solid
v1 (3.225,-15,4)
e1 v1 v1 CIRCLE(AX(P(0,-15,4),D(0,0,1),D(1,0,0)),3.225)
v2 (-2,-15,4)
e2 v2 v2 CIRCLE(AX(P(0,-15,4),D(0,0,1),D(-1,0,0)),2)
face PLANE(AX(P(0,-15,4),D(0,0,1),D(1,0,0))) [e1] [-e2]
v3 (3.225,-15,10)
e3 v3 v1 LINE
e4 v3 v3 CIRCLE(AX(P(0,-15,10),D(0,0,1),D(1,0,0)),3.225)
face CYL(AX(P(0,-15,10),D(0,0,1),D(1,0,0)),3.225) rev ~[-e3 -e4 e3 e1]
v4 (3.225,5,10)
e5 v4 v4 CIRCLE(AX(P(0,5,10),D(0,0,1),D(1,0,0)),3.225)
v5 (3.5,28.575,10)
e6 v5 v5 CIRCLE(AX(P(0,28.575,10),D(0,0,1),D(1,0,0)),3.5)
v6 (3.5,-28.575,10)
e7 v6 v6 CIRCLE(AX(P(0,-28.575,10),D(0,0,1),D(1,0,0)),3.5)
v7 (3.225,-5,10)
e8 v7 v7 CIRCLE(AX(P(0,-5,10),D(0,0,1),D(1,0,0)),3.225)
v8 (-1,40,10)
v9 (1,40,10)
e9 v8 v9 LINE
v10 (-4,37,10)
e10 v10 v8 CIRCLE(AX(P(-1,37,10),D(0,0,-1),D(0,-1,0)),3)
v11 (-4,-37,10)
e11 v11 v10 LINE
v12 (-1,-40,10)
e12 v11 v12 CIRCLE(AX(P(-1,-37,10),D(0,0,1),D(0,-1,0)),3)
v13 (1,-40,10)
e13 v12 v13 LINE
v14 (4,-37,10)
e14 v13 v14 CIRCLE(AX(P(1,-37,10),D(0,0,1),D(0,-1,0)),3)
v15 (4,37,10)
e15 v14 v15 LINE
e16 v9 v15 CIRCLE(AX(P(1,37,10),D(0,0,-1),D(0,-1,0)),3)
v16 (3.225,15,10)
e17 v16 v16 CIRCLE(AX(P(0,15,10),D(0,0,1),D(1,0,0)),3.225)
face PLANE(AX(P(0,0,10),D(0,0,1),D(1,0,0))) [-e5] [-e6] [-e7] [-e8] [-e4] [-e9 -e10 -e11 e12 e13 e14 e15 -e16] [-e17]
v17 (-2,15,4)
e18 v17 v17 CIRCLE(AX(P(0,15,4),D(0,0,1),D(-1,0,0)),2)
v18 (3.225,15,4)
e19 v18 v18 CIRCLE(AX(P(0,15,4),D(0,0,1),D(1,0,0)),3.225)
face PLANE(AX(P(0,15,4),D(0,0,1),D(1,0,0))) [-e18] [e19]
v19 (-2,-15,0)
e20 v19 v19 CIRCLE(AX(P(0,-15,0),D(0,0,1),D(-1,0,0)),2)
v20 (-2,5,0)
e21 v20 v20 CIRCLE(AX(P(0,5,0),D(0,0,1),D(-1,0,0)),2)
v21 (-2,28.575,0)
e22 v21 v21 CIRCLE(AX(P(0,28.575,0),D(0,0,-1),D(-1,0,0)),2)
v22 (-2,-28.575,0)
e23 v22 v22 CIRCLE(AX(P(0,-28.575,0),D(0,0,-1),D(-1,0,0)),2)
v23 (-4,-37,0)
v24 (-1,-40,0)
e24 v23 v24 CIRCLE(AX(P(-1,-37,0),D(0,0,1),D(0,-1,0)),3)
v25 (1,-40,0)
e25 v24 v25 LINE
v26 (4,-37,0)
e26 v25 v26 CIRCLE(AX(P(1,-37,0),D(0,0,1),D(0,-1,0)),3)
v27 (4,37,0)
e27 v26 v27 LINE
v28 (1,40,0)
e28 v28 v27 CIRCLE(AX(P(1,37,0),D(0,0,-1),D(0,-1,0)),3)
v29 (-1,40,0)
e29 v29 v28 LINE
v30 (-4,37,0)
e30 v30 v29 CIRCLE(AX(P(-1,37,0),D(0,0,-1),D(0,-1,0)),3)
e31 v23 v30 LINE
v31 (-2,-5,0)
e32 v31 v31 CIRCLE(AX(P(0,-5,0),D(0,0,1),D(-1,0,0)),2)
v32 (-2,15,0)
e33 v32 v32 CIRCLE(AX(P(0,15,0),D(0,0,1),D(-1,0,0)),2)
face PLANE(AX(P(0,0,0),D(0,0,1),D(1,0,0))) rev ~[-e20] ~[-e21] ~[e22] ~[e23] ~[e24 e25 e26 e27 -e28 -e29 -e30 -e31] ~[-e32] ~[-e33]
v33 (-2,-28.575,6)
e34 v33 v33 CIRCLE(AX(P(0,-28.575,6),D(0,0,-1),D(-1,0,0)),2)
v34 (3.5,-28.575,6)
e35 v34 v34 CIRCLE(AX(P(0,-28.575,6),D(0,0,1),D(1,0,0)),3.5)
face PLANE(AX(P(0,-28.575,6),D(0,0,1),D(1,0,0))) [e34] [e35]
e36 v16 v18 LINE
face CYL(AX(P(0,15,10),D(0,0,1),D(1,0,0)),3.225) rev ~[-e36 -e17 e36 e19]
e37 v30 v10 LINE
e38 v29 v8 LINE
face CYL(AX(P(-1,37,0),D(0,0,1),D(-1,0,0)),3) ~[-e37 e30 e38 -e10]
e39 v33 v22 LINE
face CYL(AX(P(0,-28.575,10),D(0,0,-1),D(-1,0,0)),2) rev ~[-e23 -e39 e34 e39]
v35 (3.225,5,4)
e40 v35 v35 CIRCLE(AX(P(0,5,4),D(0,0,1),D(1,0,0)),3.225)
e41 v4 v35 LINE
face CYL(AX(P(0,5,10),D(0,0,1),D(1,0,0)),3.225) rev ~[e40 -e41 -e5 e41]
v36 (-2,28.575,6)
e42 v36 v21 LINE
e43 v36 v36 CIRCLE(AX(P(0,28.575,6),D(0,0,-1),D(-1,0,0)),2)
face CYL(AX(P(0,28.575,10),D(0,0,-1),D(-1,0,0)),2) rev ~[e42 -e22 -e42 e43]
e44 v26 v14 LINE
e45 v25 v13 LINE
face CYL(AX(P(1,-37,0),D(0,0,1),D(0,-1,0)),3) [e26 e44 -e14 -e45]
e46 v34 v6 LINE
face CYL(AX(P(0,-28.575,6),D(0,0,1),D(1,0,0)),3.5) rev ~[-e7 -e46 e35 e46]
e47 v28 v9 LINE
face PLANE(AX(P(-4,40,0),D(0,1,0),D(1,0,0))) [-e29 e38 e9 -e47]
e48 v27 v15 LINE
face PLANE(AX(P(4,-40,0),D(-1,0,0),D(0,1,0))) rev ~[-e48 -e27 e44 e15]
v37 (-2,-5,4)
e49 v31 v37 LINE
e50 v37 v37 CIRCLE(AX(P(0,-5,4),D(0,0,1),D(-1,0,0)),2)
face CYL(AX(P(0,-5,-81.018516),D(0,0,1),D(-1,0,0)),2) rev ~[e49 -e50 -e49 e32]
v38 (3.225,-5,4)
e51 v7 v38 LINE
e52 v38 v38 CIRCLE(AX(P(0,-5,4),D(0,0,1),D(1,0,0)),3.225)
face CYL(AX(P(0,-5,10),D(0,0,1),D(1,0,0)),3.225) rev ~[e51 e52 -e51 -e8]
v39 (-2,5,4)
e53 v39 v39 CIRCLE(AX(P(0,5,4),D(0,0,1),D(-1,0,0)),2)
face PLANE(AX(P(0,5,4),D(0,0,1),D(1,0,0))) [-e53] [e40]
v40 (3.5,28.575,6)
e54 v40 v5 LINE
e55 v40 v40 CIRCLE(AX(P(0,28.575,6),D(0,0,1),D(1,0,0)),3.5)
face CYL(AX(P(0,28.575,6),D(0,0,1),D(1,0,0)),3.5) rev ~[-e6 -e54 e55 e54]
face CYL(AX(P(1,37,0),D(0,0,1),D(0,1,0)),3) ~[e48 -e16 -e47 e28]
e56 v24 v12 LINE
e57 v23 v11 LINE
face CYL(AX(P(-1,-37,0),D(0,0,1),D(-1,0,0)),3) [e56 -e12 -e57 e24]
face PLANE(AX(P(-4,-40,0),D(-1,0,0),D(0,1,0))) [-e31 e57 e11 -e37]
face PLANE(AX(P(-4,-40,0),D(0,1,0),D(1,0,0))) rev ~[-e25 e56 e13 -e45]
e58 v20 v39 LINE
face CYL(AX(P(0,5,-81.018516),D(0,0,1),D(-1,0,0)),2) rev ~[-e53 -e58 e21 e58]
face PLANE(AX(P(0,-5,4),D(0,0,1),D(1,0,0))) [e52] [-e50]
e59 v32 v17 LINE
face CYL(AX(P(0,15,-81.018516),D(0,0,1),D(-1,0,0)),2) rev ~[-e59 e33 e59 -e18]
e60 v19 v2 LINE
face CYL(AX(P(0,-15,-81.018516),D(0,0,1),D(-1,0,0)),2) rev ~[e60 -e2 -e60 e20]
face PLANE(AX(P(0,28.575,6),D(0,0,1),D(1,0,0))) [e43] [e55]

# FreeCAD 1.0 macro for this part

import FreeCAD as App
import Part
import Sketcher


def edges_at(feature, points):
    """Names of the edges that pass closest to the given points."""
    edges = feature.Shape.Edges
    near = lambda p: min(range(len(edges)), key=lambda i: edges[i].distToShape(Part.Vertex(*p))[0])
    return sorted({f"Edge{near(p) + 1}" for p in points})

doc = App.newDocument("Part")
body = doc.addObject("PartDesign::Body", "Body")

sketch1 = body.newObject("Sketcher::SketchObject", "Sketch")
sketch1.AttachmentSupport = (doc.getObject("XY_Plane"), [""])
sketch1.MapMode = "FlatFace"
sketch1.addGeometry([
    Part.LineSegment(App.Vector(-4, 40, 0), App.Vector(-4, -40, 0)),
    Part.LineSegment(App.Vector(-4, -40, 0), App.Vector(4, -40, 0)),
    Part.LineSegment(App.Vector(4, -40, 0), App.Vector(4, 40, 0)),
    Part.LineSegment(App.Vector(4, 40, 0), App.Vector(-4, 40, 0)),
], False)
sketch1.addConstraint([
    Sketcher.Constraint("Coincident", 0, 2, 1, 1),
    Sketcher.Constraint("Coincident", 1, 2, 2, 1),
    Sketcher.Constraint("Coincident", 2, 2, 3, 1),
    Sketcher.Constraint("Coincident", 3, 2, 0, 1),
    Sketcher.Constraint("Vertical", 0),
    Sketcher.Constraint("Horizontal", 1),
    Sketcher.Constraint("Vertical", 2),
    Sketcher.Constraint("Horizontal", 3),
    Sketcher.Constraint("Symmetric", 0, 2, 2, 2, -1, 1),
    Sketcher.Constraint("DistanceX", 1, 1, 1, 2, 8.0),
    Sketcher.Constraint("DistanceY", 0, 2, 0, 1, 80.0),
])
pad1 = body.newObject("PartDesign::Pad", "Pad")
pad1.Profile = sketch1
pad1.Length = 10

sketch2 = body.newObject("Sketcher::SketchObject", "Sketch001")
sketch2.AttachmentSupport = (doc.getObject("XY_Plane"), [""])
sketch2.MapMode = "FlatFace"
sketch2.AttachmentOffset = App.Placement(App.Vector(0, 0, 10), App.Rotation())
sketch2.addGeometry([
    Part.Circle(App.Vector(0, 28.575, 0), App.Vector(0, 0, 1), 2),
    Part.Circle(App.Vector(0, -28.575, 0), App.Vector(0, 0, 1), 2),
], False)
sketch2.addConstraint([
    Sketcher.Constraint("Equal", 0, 1),
    Sketcher.Constraint("Symmetric", 0, 3, 1, 3, -1, 1),
    Sketcher.Constraint("PointOnObject", 0, 3, -2),
    Sketcher.Constraint("Diameter", 0, 4.0),
    Sketcher.Constraint("DistanceY", 1, 3, 0, 3, 57.15),
])
doc.recompute()
hole = body.newObject("PartDesign::Hole", "Hole")
hole.Profile = sketch2
hole.ThreadType = "None"
hole.Diameter = 4
hole.DepthType = "ThroughAll"
hole.HoleCutType = "Counterbore"
hole.HoleCutDiameter = 7
hole.HoleCutDepth = 4
doc.recompute()

fillet = body.newObject("PartDesign::Fillet", "Fillet")
fillet.Base = (hole, edges_at(hole, [
    (-4, 40, 5),
    (4, 40, 5),
    (-4, -40, 5),
    (4, -40, 5),
]))
fillet.Radius = 3

sketch3 = body.newObject("Sketcher::SketchObject", "Sketch002")
sketch3.AttachmentSupport = (doc.getObject("XY_Plane"), [""])
sketch3.MapMode = "FlatFace"
sketch3.AttachmentOffset = App.Placement(App.Vector(0, 0, 10), App.Rotation())
sketch3.addGeometry([
    Part.Circle(App.Vector(0, -5, 0), App.Vector(0, 0, 1), 3.225),
    Part.Circle(App.Vector(0, 5, 0), App.Vector(0, 0, 1), 3.225),
    Part.Circle(App.Vector(0, 15, 0), App.Vector(0, 0, 1), 3.225),
    Part.Circle(App.Vector(0, -15, 0), App.Vector(0, 0, 1), 3.225),
], False)
sketch3.addConstraint([
    Sketcher.Constraint("Equal", 0, 1),
    Sketcher.Constraint("Equal", 1, 2),
    Sketcher.Constraint("Equal", 2, 3),
    Sketcher.Constraint("Symmetric", 0, 3, 1, 3, -1, 1),
    Sketcher.Constraint("Symmetric", 2, 3, 3, 3, -1, 1),
    Sketcher.Constraint("PointOnObject", 0, 3, -2),
    Sketcher.Constraint("PointOnObject", 2, 3, -2),
    Sketcher.Constraint("Diameter", 0, 6.45),
    Sketcher.Constraint("DistanceY", 0, 3, -1, 1, 5.0),
    Sketcher.Constraint("DistanceY", -1, 1, 2, 3, 15.0),
])
pocket1 = body.newObject("PartDesign::Pocket", "Pocket")
pocket1.Profile = sketch3
pocket1.Length = 6

sketch4 = body.newObject("Sketcher::SketchObject", "Sketch003")
sketch4.AttachmentSupport = (doc.getObject("XY_Plane"), [""])
sketch4.MapMode = "FlatFace"
sketch4.addGeometry([
    Part.Circle(App.Vector(0, -15, 0), App.Vector(0, 0, 1), 2),
    Part.Circle(App.Vector(0, -5, 0), App.Vector(0, 0, 1), 2),
    Part.Circle(App.Vector(0, 5, 0), App.Vector(0, 0, 1), 2),
    Part.Circle(App.Vector(0, 15, 0), App.Vector(0, 0, 1), 2),
], False)
sketch4.addConstraint([
    Sketcher.Constraint("Equal", 0, 1),
    Sketcher.Constraint("Equal", 1, 2),
    Sketcher.Constraint("Equal", 2, 3),
    Sketcher.Constraint("Symmetric", 1, 3, 2, 3, -1, 1),
    Sketcher.Constraint("Symmetric", 0, 3, 3, 3, -1, 1),
    Sketcher.Constraint("PointOnObject", 0, 3, -2),
    Sketcher.Constraint("PointOnObject", 1, 3, -2),
    Sketcher.Constraint("Diameter", 0, 4.0),
    Sketcher.Constraint("DistanceY", 0, 3, -1, 1, 15.0),
    Sketcher.Constraint("DistanceY", 1, 3, -1, 1, 5.0),
])
doc.recompute()
hole2 = body.newObject("PartDesign::Hole", "Hole001")
hole2.Profile = sketch4
hole2.ThreadType = "None"
hole2.Diameter = 4
hole2.DepthType = "ThroughAll"
hole2.Reversed = True

doc.recompute()
